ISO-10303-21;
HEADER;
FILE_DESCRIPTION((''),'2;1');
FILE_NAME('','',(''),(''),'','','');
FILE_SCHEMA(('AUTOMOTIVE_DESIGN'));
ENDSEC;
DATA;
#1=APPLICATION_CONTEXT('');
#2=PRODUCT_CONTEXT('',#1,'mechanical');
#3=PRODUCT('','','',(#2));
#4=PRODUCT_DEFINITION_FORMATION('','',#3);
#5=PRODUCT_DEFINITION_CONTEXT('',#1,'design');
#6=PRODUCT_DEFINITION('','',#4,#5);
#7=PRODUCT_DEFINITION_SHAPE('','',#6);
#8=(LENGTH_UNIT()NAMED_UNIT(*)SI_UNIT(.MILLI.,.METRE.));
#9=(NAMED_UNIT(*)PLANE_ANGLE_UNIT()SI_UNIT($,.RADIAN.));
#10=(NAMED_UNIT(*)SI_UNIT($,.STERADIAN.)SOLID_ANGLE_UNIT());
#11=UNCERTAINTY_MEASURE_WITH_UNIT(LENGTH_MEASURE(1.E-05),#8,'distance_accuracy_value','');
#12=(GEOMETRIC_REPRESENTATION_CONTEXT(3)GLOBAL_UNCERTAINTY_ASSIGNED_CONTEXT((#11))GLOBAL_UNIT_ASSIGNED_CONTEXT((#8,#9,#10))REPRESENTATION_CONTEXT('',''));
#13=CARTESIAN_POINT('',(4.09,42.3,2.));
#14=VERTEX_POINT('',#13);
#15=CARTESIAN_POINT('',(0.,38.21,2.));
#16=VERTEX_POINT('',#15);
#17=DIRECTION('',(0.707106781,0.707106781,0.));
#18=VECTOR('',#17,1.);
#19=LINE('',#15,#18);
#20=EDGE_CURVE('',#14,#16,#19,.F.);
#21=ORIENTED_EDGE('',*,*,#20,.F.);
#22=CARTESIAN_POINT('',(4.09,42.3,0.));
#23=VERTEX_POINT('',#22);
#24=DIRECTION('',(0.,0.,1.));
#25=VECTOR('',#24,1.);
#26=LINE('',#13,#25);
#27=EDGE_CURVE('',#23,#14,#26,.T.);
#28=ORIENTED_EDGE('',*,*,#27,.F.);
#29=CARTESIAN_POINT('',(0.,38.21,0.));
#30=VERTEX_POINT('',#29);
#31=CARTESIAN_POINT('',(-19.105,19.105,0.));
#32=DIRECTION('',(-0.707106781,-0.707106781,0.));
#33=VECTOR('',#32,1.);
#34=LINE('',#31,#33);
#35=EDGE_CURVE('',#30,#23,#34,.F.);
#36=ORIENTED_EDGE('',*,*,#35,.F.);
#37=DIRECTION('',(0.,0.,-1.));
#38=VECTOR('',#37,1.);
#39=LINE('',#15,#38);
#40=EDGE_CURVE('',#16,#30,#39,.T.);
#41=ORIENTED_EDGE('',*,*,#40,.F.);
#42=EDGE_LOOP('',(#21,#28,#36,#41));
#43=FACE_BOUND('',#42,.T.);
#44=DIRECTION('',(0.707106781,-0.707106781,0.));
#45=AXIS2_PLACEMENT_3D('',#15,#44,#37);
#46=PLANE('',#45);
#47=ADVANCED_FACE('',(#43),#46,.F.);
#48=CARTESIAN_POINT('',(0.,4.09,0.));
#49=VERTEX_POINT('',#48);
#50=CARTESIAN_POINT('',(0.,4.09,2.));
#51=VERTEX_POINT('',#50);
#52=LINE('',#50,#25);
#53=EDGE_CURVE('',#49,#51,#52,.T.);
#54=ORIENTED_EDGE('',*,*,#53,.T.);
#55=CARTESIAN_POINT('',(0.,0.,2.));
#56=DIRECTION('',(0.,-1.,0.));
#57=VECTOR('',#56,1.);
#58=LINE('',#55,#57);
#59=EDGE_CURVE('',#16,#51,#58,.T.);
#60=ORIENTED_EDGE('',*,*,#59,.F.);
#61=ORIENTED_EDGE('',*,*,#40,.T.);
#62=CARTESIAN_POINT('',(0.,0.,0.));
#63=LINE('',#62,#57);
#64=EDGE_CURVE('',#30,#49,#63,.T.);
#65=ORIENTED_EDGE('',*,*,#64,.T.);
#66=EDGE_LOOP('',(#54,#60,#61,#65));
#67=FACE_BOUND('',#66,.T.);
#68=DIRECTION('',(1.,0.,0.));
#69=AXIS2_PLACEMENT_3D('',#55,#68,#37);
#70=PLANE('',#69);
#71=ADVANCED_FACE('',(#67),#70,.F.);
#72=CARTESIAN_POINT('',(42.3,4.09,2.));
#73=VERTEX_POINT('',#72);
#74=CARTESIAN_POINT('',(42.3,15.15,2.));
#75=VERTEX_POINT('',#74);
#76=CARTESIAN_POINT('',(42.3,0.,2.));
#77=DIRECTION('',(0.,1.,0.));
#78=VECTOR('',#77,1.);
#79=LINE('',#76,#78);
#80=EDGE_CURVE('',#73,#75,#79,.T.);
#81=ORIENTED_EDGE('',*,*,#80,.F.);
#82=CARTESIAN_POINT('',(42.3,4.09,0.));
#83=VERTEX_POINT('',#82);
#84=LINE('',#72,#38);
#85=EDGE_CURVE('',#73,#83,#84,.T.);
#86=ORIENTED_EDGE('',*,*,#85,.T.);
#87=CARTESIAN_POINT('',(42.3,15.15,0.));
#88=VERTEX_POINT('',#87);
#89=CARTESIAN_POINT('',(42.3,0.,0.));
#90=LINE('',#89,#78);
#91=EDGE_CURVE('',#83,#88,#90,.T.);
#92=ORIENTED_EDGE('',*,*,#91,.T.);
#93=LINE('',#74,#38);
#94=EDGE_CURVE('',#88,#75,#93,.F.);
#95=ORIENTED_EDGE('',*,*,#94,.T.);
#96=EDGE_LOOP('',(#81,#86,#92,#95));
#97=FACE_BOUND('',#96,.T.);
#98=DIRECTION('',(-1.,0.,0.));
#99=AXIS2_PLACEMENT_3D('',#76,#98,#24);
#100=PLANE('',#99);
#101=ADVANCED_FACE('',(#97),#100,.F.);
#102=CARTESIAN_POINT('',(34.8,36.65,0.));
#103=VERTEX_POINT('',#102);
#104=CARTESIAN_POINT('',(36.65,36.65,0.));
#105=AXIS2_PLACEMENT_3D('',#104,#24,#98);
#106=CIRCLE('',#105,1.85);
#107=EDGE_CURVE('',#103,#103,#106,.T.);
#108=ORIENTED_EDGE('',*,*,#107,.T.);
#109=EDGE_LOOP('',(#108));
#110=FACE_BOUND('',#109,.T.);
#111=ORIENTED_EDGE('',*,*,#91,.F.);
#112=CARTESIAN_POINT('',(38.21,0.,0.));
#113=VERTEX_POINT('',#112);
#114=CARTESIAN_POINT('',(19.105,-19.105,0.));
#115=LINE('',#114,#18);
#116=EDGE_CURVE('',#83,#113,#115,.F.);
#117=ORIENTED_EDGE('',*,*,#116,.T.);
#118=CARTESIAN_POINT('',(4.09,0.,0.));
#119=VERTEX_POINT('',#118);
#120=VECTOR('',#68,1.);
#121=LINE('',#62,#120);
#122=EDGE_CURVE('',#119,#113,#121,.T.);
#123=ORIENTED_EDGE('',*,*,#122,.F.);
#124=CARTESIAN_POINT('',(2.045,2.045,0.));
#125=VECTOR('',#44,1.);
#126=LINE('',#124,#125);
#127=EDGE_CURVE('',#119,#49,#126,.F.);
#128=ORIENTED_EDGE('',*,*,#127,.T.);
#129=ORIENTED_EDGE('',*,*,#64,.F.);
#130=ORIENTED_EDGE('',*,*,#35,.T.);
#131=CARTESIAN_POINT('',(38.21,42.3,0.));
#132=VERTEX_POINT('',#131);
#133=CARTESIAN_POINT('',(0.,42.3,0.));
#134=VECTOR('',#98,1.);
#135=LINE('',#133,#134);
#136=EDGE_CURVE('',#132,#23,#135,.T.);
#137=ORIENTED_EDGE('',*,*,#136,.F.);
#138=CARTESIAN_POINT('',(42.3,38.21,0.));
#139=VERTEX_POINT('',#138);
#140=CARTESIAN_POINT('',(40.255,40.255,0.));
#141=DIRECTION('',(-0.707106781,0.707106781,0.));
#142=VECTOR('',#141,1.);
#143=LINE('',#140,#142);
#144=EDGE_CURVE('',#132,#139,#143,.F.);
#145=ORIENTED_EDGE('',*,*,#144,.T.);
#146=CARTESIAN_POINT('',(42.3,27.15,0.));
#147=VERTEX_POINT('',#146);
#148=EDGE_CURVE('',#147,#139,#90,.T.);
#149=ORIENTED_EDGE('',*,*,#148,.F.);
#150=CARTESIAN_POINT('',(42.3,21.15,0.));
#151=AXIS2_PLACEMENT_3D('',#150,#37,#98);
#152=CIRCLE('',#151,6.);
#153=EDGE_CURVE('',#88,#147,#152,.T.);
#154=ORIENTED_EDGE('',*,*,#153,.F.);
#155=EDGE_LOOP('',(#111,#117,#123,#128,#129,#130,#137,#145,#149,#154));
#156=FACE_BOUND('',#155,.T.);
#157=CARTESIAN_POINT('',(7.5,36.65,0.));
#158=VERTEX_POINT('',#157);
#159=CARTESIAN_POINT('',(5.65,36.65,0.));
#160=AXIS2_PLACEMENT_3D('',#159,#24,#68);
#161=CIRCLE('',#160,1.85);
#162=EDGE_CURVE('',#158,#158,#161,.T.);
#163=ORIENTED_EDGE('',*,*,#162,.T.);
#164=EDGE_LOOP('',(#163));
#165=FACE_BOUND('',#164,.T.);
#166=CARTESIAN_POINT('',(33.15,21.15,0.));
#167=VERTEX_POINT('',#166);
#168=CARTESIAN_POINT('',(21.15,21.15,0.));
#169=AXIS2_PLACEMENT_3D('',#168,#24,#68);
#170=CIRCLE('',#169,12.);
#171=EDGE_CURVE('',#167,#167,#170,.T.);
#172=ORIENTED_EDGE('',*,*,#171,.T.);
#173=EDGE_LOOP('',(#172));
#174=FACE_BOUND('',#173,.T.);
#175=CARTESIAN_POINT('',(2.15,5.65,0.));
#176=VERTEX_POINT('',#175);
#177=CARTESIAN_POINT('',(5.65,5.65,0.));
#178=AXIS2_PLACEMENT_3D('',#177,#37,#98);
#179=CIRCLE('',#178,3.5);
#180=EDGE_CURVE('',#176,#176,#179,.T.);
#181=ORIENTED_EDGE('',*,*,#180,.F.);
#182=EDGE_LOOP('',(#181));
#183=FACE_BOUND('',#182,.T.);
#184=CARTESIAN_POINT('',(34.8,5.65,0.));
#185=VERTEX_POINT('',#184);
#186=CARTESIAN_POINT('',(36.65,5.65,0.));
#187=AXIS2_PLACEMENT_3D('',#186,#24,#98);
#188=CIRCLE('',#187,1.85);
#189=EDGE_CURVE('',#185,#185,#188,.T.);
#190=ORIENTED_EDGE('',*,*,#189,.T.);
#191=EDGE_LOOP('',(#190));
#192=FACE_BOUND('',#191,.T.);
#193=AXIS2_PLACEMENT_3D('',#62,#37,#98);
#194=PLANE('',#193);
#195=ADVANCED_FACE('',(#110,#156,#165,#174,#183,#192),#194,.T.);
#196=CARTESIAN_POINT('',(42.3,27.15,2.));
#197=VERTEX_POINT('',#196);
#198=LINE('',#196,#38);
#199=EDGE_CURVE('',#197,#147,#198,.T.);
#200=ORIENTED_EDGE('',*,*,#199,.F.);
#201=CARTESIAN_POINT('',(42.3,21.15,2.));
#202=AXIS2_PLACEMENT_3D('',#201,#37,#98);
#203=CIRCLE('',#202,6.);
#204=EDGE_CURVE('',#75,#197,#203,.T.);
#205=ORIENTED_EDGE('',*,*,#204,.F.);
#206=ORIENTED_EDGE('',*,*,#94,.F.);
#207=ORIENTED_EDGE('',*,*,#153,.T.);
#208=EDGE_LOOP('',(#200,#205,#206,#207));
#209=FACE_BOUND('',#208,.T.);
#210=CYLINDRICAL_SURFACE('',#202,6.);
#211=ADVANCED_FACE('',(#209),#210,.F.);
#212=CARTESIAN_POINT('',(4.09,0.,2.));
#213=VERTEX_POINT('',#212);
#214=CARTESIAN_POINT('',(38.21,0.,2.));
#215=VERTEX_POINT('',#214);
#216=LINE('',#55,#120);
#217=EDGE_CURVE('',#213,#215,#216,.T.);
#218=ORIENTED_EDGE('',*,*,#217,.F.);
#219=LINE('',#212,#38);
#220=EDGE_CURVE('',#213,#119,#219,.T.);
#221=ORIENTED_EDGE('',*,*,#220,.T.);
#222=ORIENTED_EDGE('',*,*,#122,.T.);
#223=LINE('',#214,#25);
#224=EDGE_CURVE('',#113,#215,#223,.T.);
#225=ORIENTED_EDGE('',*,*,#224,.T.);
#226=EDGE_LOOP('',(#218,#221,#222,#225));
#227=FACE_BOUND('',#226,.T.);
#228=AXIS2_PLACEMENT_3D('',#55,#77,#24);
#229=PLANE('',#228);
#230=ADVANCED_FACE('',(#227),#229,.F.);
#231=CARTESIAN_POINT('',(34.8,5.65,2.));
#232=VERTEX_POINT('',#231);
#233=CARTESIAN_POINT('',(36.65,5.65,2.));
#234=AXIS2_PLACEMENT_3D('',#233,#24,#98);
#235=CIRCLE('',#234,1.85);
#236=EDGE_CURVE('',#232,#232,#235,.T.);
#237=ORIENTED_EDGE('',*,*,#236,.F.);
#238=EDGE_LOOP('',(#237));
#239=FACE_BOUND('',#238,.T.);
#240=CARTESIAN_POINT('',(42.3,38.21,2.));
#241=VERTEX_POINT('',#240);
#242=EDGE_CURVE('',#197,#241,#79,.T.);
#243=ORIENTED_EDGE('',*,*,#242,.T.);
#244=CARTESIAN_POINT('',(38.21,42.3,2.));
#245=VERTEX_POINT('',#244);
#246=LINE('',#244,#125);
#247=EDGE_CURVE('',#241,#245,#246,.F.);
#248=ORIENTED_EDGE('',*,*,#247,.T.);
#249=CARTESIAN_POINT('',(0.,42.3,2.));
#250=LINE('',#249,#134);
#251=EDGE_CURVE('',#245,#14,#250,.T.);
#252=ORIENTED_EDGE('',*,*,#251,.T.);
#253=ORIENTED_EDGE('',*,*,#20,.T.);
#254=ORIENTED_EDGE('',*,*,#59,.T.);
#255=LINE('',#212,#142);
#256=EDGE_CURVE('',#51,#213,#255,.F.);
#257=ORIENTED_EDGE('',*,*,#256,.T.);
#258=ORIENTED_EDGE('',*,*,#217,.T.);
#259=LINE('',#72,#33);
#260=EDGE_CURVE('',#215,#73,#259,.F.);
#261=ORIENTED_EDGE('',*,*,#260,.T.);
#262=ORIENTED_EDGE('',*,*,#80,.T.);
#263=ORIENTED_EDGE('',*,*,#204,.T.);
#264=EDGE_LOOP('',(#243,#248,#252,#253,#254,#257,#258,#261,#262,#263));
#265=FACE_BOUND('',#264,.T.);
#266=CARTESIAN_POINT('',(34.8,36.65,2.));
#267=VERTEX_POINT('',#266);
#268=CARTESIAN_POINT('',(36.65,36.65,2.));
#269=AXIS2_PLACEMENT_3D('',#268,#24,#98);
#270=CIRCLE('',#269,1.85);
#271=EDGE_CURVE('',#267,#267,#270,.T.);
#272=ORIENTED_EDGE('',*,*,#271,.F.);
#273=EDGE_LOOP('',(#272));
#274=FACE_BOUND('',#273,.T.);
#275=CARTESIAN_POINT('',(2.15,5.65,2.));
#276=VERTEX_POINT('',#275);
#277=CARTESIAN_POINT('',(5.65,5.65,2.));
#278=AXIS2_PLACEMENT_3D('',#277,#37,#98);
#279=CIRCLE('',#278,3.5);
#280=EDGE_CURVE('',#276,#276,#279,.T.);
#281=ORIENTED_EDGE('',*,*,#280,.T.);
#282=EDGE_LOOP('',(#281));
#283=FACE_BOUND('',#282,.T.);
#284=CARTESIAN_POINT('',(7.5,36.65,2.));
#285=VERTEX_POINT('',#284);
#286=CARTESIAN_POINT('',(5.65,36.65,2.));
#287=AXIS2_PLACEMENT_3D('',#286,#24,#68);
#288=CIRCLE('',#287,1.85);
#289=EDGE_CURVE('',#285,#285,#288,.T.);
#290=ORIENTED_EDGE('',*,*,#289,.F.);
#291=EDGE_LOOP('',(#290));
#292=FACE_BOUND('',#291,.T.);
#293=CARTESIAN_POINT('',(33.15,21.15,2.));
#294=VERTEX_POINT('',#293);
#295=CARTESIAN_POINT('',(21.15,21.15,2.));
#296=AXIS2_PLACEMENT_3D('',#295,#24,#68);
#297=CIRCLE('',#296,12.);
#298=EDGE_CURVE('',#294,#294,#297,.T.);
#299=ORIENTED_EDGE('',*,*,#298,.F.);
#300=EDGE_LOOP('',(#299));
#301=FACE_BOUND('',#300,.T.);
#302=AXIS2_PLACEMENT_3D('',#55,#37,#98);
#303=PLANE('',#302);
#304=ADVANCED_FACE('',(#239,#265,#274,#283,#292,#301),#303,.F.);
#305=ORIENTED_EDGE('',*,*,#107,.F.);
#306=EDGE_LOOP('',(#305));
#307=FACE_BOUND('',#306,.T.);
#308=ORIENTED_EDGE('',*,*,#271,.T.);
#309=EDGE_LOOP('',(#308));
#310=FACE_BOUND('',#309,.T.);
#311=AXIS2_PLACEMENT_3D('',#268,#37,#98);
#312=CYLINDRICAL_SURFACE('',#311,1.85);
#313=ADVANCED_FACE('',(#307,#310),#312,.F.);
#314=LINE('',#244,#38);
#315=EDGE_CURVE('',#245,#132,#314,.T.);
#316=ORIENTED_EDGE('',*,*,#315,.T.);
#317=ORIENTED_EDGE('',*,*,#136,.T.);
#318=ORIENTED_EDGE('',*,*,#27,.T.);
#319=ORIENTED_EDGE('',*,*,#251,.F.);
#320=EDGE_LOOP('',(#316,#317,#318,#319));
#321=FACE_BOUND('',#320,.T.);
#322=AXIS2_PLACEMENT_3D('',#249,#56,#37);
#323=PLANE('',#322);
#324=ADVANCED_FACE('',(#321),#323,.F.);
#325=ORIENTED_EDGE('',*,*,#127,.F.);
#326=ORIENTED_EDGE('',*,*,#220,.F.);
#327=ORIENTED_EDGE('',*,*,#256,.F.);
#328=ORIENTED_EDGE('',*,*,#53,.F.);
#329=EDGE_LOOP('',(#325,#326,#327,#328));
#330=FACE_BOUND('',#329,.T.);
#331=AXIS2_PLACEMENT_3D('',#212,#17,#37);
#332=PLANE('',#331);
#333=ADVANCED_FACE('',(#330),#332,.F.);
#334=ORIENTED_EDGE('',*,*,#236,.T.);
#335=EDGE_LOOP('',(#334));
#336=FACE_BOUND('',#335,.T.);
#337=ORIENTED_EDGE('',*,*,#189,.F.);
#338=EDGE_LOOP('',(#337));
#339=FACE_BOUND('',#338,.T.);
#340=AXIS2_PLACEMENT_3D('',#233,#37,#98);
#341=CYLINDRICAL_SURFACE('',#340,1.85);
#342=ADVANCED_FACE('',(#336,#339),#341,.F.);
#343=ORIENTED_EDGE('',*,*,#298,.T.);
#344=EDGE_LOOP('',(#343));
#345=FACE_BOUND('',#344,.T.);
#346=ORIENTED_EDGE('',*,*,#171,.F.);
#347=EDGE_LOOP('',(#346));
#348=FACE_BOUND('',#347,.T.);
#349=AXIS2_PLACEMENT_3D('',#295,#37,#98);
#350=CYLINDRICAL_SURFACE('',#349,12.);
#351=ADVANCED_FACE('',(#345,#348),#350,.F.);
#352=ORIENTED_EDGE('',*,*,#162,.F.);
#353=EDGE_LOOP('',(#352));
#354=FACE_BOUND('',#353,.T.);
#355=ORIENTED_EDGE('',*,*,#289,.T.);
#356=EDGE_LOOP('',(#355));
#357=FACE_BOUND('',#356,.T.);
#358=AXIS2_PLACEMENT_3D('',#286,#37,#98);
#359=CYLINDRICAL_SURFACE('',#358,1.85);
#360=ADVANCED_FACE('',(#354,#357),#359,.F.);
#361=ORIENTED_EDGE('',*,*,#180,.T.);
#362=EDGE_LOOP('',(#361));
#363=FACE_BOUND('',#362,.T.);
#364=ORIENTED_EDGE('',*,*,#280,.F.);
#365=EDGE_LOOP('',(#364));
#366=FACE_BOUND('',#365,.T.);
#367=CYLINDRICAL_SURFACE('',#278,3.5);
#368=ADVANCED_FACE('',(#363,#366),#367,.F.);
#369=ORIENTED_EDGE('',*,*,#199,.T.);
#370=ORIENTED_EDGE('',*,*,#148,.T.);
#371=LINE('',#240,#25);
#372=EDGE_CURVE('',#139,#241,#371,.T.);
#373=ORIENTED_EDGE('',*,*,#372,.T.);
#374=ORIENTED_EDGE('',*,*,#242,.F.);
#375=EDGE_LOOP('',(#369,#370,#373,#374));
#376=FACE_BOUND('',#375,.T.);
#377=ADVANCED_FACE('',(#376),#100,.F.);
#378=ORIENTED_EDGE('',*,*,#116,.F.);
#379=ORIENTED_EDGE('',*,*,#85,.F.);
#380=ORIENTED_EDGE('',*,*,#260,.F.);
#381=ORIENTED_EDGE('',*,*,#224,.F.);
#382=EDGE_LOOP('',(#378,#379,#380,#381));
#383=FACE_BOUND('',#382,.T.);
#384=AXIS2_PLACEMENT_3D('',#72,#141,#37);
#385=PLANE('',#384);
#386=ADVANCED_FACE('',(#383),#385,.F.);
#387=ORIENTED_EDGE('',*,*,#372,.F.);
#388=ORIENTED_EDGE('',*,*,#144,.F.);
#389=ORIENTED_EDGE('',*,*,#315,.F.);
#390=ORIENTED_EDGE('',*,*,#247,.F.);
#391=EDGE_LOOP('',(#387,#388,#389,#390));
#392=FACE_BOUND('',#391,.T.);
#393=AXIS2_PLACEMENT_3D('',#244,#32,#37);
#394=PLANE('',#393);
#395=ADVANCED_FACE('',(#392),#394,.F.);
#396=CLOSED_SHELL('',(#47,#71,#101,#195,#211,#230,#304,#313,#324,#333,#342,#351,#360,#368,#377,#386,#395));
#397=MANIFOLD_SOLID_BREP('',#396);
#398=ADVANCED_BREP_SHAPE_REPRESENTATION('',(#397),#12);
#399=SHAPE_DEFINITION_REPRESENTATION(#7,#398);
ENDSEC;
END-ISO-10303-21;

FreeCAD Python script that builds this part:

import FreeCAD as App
import Part
import Sketcher
from FreeCAD import Vector
Q = App.Units.Quantity


def edges_at(feature, points):
    """Names of the edges that pass closest to the given points."""
    edges = feature.Shape.Edges
    near = lambda p: min(range(len(edges)), key=lambda i: edges[i].distToShape(Part.Vertex(*p))[0])
    return sorted({f"Edge{near(p) + 1}" for p in points})

doc = App.newDocument("Part")
params = doc.addObject("Spreadsheet::Sheet", "Params")
for row, (alias, value) in enumerate([
    ("sketch1_diameter", "24 mm"),
    ("sketch1_diameter2", "3.7 mm"),
    ("sketch1_width", "42.3 mm"),
    ("pad1_length", "2 mm"),
    ("chamfer_size", "4.09 mm"),
    ("sketch2_diameter", "12 mm"),
    ("sketch3_diameter", "7 mm"),
], start=1):
    params.set(f"A{row}", alias)
    params.set(f"B{row}", "=" + value)
    params.setAlias(f"B{row}", alias)

body = doc.addObject("PartDesign::Body", "Body")

# Sketch on XY plane
sketch1 = body.newObject("Sketcher::SketchObject", "Sketch")
sketch1.AttachmentSupport = (doc.getObject("XY_Plane"), [""])
sketch1.MapMode = "FlatFace"
sketch1.addGeometry([
    Part.LineSegment(Vector(0, 42.3, 0), Vector(0, 0, 0)),  # 0
    Part.LineSegment(Vector(0, 0, 0), Vector(42.3, 0, 0)),  # 1
    Part.LineSegment(Vector(42.3, 0, 0), Vector(42.3, 42.3, 0)),  # 2
    Part.LineSegment(Vector(42.3, 42.3, 0), Vector(0, 42.3, 0)),  # 3
    Part.Circle(Vector(5.65, 5.65, 0), Vector(0, 0, 1), 1.85),  # 4
    Part.Circle(Vector(21.15, 21.15, 0), Vector(0, 0, 1), 12),  # 5
    Part.Circle(Vector(36.65, 5.65, 0), Vector(0, 0, 1), 1.85),  # 6
    Part.Circle(Vector(5.65, 36.65, 0), Vector(0, 0, 1), 1.85),  # 7
    Part.Circle(Vector(36.65, 36.65, 0), Vector(0, 0, 1), 1.85),  # 8
], False)
sketch1.addConstraint([
    Sketcher.Constraint("Coincident", 0, 2, 1, 1),
    Sketcher.Constraint("Coincident", 1, 2, 2, 1),
    Sketcher.Constraint("Coincident", 2, 2, 3, 1),
    Sketcher.Constraint("Coincident", 3, 2, 0, 1),
    Sketcher.Constraint("Vertical", 0),
    Sketcher.Constraint("Horizontal", 1),
    Sketcher.Constraint("Vertical", 2),
    Sketcher.Constraint("Horizontal", 3),
    Sketcher.Constraint("Coincident", 0, 2, -1, 1),
    Sketcher.Constraint("Equal", 4, 6),
    Sketcher.Constraint("Equal", 6, 7),
    Sketcher.Constraint("Equal", 7, 8),
    Sketcher.Constraint("Horizontal", 4, 3, 6, 3),
    Sketcher.Constraint("Horizontal", 7, 3, 8, 3),
    Sketcher.Constraint("Vertical", 4, 3, 7, 3),
    Sketcher.Constraint("Vertical", 6, 3, 8, 3),
    Sketcher.Constraint("Equal", 3, 0),
    Sketcher.Constraint("Diameter", 5, Q("24 mm")),
    Sketcher.Constraint("Diameter", 4, Q("3.7 mm")),
    Sketcher.Constraint("DistanceX", 1, 1, 1, 2, Q("42.3 mm")),
    Sketcher.Constraint("DistanceX", 4, 3, 6, 3, Q("31 mm")),
    Sketcher.Constraint("DistanceY", 4, 3, 7, 3, Q("31 mm")),
    Sketcher.Constraint("DistanceX", 4, 3, 5, 3, Q("15.5 mm")),
    Sketcher.Constraint("DistanceY", 4, 3, 5, 3, Q("15.5 mm")),
    Sketcher.Constraint("DistanceX", -1, 1, 4, 3, Q("5.65 mm")),
    Sketcher.Constraint("DistanceY", -1, 1, 4, 3, Q("5.65 mm")),
])
sketch1.setExpression("Constraints[17]", "Params.sketch1_diameter")
sketch1.setExpression("Constraints[18]", "Params.sketch1_diameter2")
sketch1.setExpression("Constraints[19]", "Params.sketch1_width")
pad1 = body.newObject("PartDesign::Pad", "Pad")
pad1.Profile = sketch1
pad1.setExpression("Length", "Params.pad1_length")
doc.recompute()

chamfer = body.newObject("PartDesign::Chamfer", "Chamfer")
chamfer.Base = (pad1, edges_at(pad1, [
    (0, 42.3, 1),
    (42.3, 42.3, 1),
    (42.3, 0, 1),
    (0, 0, 1),
]))
chamfer.setExpression("Size", "Params.chamfer_size")

# Sketch on XY plane
sketch2 = body.newObject("Sketcher::SketchObject", "Sketch001")
sketch2.AttachmentSupport = (doc.getObject("XY_Plane"), [""])
sketch2.MapMode = "FlatFace"
sketch2.addGeometry(Part.Circle(Vector(42.3, 21.15, 0), Vector(0, 0, 1), 6), False)
sketch2.addConstraint([
    Sketcher.Constraint("Diameter", 0, Q("12 mm")),
    Sketcher.Constraint("DistanceX", -1, 1, 0, 3, Q("42.3 mm")),
    Sketcher.Constraint("DistanceY", -1, 1, 0, 3, Q("21.15 mm")),
])
sketch2.setExpression("Constraints[0]", "Params.sketch2_diameter")
pocket1 = body.newObject("PartDesign::Pocket", "Pocket")
pocket1.Profile = sketch2
pocket1.Type = "ThroughAll"
pocket1.Reversed = True

# Sketch on XY plane
sketch3 = body.newObject("Sketcher::SketchObject", "Sketch002")
sketch3.AttachmentSupport = (doc.getObject("XY_Plane"), [""])
sketch3.MapMode = "FlatFace"
sketch3.addGeometry(Part.Circle(Vector(5.65, 5.65, 0), Vector(0, 0, 1), 3.5), False)
sketch3.addConstraint([
    Sketcher.Constraint("Diameter", 0, Q("7 mm")),
    Sketcher.Constraint("DistanceX", -1, 1, 0, 3, Q("5.65 mm")),
    Sketcher.Constraint("DistanceY", -1, 1, 0, 3, Q("5.65 mm")),
])
sketch3.setExpression("Constraints[0]", "Params.sketch3_diameter")
pocket2 = body.newObject("PartDesign::Pocket", "Pocket001")
pocket2.Profile = sketch3
pocket2.Type = "ThroughAll"
pocket2.Reversed = True

doc.recompute()
